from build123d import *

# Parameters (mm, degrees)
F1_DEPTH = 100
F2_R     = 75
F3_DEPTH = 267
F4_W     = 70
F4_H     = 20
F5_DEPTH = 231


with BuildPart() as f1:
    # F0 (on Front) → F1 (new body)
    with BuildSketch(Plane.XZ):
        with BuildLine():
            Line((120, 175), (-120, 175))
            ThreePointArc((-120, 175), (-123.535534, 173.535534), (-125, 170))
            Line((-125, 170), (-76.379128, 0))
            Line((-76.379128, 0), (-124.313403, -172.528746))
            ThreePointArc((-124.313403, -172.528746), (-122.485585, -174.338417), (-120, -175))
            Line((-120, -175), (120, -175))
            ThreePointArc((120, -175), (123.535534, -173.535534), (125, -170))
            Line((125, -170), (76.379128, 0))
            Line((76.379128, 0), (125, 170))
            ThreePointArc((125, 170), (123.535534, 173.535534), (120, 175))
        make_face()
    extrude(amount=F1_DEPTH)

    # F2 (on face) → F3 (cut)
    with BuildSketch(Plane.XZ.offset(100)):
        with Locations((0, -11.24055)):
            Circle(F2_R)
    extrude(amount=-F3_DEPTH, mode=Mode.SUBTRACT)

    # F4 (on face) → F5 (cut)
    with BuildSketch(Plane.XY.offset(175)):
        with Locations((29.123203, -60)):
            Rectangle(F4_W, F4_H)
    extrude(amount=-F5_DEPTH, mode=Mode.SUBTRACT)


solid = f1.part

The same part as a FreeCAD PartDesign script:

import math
import FreeCAD as App
import Part
import Sketcher

V = App.Vector


def add_polygon(sketch, points):
    """Adds a closed chain of lines whose ends are joined by coincident constraints."""
    first, n = sketch.GeometryCount, len(points)
    for a, b in zip(points, points[1:] + points[:1]):
        sketch.addGeometry(Part.LineSegment(App.Vector(*a, 0), App.Vector(*b, 0)), False)
    for i in range(n):
        sketch.addConstraint(Sketcher.Constraint("Coincident", first + i, 2, first + (i + 1) % n, 1))

doc = App.newDocument("Part")
body = doc.addObject("PartDesign::Body", "Body")

sketch1 = body.newObject("Sketcher::SketchObject", "Sketch")
sketch1.AttachmentSupport = (doc.getObject("XZ_Plane"), [""])
sketch1.MapMode = "FlatFace"
sketch1.addGeometry(Part.LineSegment(V(120, 175, 0), V(-120, 175, 0)), False)
sketch1.addGeometry(Part.ArcOfCircle(Part.Circle(V(-120, 170, 0), V(0, 0, 1), 5), math.radians(90), math.radians(180)), False)
sketch1.addGeometry(Part.LineSegment(V(-125, 170, 0), V(-76.4, 0, 0)), False)
sketch1.addGeometry(Part.LineSegment(V(-76.4, 0, 0), V(-124.3, -172.5, 0)), False)
sketch1.addGeometry(Part.ArcOfCircle(Part.Circle(V(-120, -170, 0), V(0, 0, 1), 5), math.radians(-150), math.radians(-90)), False)
sketch1.addGeometry(Part.LineSegment(V(-120, -175, 0), V(120, -175, 0)), False)
sketch1.addGeometry(Part.ArcOfCircle(Part.Circle(V(120, -170, 0), V(0, 0, 1), 5), math.radians(-90), math.radians(0)), False)
sketch1.addGeometry(Part.LineSegment(V(125, -170, 0), V(76.4, 0, 0)), False)
sketch1.addGeometry(Part.LineSegment(V(76.4, 0, 0), V(125, 170, 0)), False)
sketch1.addGeometry(Part.ArcOfCircle(Part.Circle(V(120, 170, 0), V(0, 0, 1), 5), math.radians(0), math.radians(90)), False)
sketch1.addConstraint(Sketcher.Constraint("Tangent", 0, 2, 1, 1))
sketch1.addConstraint(Sketcher.Constraint("Coincident", 1, 2, 2, 1))
sketch1.addConstraint(Sketcher.Constraint("Coincident", 2, 2, 3, 1))
sketch1.addConstraint(Sketcher.Constraint("Coincident", 3, 2, 4, 1))
sketch1.addConstraint(Sketcher.Constraint("Tangent", 4, 2, 5, 1))
sketch1.addConstraint(Sketcher.Constraint("Tangent", 5, 2, 6, 1))
sketch1.addConstraint(Sketcher.Constraint("Coincident", 6, 2, 7, 1))
sketch1.addConstraint(Sketcher.Constraint("Coincident", 7, 2, 8, 1))
sketch1.addConstraint(Sketcher.Constraint("Coincident", 8, 2, 9, 1))
sketch1.addConstraint(Sketcher.Constraint("Tangent", 9, 2, 0, 1))
sketch1.addConstraint(Sketcher.Constraint("Horizontal", 0))
sketch1.addConstraint(Sketcher.Constraint("Horizontal", 5))
sketch1.addConstraint(Sketcher.Constraint("Equal", 1, 6))
sketch1.addConstraint(Sketcher.Constraint("Equal", 6, 9))
sketch1.addConstraint(Sketcher.Constraint("Symmetric", 1, 3, 6, 3, -1, 1))
sketch1.addConstraint(Sketcher.Constraint("Symmetric", 4, 3, 9, 3, -1, 1))
sketch1.addConstraint(Sketcher.Constraint("Symmetric", 2, 2, 7, 2, -1, 1))
sketch1.addConstraint(Sketcher.Constraint("Symmetric", 1, 2, 8, 2, -2))
sketch1.addConstraint(Sketcher.Constraint("PointOnObject", 2, 2, -1))
sketch1.addConstraint(Sketcher.Constraint("Parallel", 2, 7))
sketch1.addConstraint(Sketcher.Constraint("Horizontal", 9, 3, 1, 2))
sketch1.addConstraint(Sketcher.Constraint("Radius", 1, 5.0))
sketch1.addConstraint(Sketcher.Constraint("DistanceX", 0, 2, 0, 1, 240.0))
sketch1.addConstraint(Sketcher.Constraint("DistanceY", -1, 1, 1, 3, 170.0))
sketch1.addConstraint(Sketcher.Constraint("Distance", 2, 176.816258))
sketch1.addConstraint(Sketcher.Constraint("Distance", 3, 179.063852))
pad1 = body.newObject("PartDesign::Pad", "Pad")
pad1.Profile = sketch1
pad1.Length = 100

sketch2 = body.newObject("Sketcher::SketchObject", "Sketch001")
sketch2.AttachmentSupport = (doc.getObject("XZ_Plane"), [""])
sketch2.MapMode = "FlatFace"
sketch2.AttachmentOffset = App.Placement(V(0, 0, 100), App.Rotation())
sketch2.addGeometry(Part.Circle(V(0, -11, 0), V(0, 0, 1), 75), False)
sketch2.addConstraint(Sketcher.Constraint("PointOnObject", 0, 3, -2))
sketch2.addConstraint(Sketcher.Constraint("Diameter", 0, 150.0))
sketch2.addConstraint(Sketcher.Constraint("DistanceY", 0, 3, -1, 1, 11.24055))
pocket1 = body.newObject("PartDesign::Pocket", "Pocket")
pocket1.Profile = sketch2
pocket1.Length = 267

sketch3 = body.newObject("Sketcher::SketchObject", "Sketch002")
sketch3.AttachmentSupport = (doc.getObject("XY_Plane"), [""])
sketch3.MapMode = "FlatFace"
sketch3.AttachmentOffset = App.Placement(V(0, 0, 175), App.Rotation())
add_polygon(sketch3, [(-6, -50), (-6, -70), (64, -70), (64, -50)])
sketch3.addConstraint(Sketcher.Constraint("Vertical", 0))
sketch3.addConstraint(Sketcher.Constraint("Horizontal", 1))
sketch3.addConstraint(Sketcher.Constraint("Vertical", 2))
sketch3.addConstraint(Sketcher.Constraint("Horizontal", 3))
sketch3.addConstraint(Sketcher.Constraint("DistanceX", 1, 1, 1, 2, 70.0))
sketch3.addConstraint(Sketcher.Constraint("DistanceY", 0, 2, 0, 1, 20.0))
sketch3.addConstraint(Sketcher.Constraint("DistanceY", 0, 2, -1, 1, 70.0))
sketch3.addConstraint(Sketcher.Constraint("DistanceX", 0, 2, -1, 1, 5.876797))
pocket2 = body.newObject("PartDesign::Pocket", "Pocket001")
pocket2.Profile = sketch3
pocket2.Length = 231

doc.recompute()
